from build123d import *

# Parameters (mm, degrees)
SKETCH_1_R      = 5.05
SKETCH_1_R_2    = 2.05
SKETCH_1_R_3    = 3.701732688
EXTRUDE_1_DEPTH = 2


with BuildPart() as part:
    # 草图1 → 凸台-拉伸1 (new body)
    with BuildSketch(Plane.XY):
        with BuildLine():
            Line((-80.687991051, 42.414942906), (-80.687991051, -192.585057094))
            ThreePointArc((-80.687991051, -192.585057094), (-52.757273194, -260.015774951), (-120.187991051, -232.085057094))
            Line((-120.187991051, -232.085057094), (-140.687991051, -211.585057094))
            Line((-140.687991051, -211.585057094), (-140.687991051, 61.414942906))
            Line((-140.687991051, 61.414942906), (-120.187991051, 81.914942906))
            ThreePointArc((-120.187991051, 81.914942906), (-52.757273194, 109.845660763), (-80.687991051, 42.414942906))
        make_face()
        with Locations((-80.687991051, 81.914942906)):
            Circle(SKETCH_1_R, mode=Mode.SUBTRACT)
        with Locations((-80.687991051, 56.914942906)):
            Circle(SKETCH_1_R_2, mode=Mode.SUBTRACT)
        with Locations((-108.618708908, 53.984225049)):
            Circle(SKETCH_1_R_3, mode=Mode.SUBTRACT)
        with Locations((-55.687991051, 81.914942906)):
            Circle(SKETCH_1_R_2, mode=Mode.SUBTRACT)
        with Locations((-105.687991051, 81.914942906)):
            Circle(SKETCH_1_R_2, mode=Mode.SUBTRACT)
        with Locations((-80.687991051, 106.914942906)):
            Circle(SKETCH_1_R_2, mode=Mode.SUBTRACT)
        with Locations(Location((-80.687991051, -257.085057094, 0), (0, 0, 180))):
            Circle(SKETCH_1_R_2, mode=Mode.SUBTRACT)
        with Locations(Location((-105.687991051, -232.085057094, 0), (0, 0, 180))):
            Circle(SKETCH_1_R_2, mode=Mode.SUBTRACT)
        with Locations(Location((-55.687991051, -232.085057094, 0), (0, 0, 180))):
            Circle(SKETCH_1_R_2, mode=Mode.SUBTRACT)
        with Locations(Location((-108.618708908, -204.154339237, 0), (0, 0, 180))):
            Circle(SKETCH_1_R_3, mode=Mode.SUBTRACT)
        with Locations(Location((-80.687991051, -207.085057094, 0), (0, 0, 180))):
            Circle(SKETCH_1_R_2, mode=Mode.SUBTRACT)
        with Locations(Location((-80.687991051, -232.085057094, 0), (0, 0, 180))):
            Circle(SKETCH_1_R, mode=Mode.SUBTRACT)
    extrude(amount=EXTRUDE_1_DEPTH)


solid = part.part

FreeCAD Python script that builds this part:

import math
import FreeCAD as App
import Part
import Sketcher
from FreeCAD import Vector

doc = App.newDocument("Part")
params = doc.addObject("Spreadsheet::Sheet", "Params")
for row, (alias, value) in enumerate([
    ("sketch1_diameter", "4.1 mm"),
    ("sketch1_diameter2", "10.1 mm"),
    ("sketch1_radius", "39.5 mm"),
    ("sketch1_height", "235 mm"),
    ("sketch1_height2", "273 mm"),
    ("pad1_length", "2 mm"),
], start=1):
    params.set(f"A{row}", alias)
    params.set(f"B{row}", "=" + value)
    params.setAlias(f"B{row}", alias)

body = doc.addObject("PartDesign::Body", "Body")

sketch1 = body.newObject("Sketcher::SketchObject", "Sketch")
sketch1.AttachmentSupport = (doc.getObject("XY_Plane"), [""])
sketch1.MapMode = "FlatFace"
sketch1.addGeometry(Part.LineSegment(Vector(-80.7, -192.6, 0), Vector(-80.7, 42.4, 0)), False)
sketch1.addGeometry(Part.ArcOfCircle(Part.Circle(Vector(-80.7, 81.9, 0), Vector(0, 0, 1), 39.5), math.radians(-90), math.radians(180)), False)
sketch1.addGeometry(Part.LineSegment(Vector(-120.2, 81.9, 0), Vector(-140.7, 61.4, 0)), False)
sketch1.addGeometry(Part.LineSegment(Vector(-140.7, 61.4, 0), Vector(-140.7, -211.6, 0)), False)
sketch1.addGeometry(Part.LineSegment(Vector(-140.7, -211.6, 0), Vector(-120.2, -232.1, 0)), False)
sketch1.addGeometry(Part.ArcOfCircle(Part.Circle(Vector(-80.7, -232.1, 0), Vector(0, 0, 1), 39.5), math.radians(180), math.radians(450)), False)
sketch1.addGeometry(Part.Circle(Vector(-55.7, -232.1, 0), Vector(0, 0, 1), 2), False)
sketch1.addGeometry(Part.Circle(Vector(-80.7, -257.1, 0), Vector(0, 0, 1), 2), False)
sketch1.addGeometry(Part.Circle(Vector(-80.7, -232.1, 0), Vector(0, 0, 1), 5), False)
sketch1.addGeometry(Part.Circle(Vector(-80.7, -207.1, 0), Vector(0, 0, 1), 2), False)
sketch1.addGeometry(Part.Circle(Vector(-105.7, -232.1, 0), Vector(0, 0, 1), 2), False)
sketch1.addGeometry(Part.Circle(Vector(-108.6, -204.2, 0), Vector(0, 0, 1), 3.7), False)
sketch1.addGeometry(Part.Circle(Vector(-55.7, 81.9, 0), Vector(0, 0, 1), 2), False)
sketch1.addGeometry(Part.Circle(Vector(-80.7, 56.9, 0), Vector(0, 0, 1), 2), False)
sketch1.addGeometry(Part.Circle(Vector(-80.7, 81.9, 0), Vector(0, 0, 1), 5), False)
sketch1.addGeometry(Part.Circle(Vector(-80.7, 106.9, 0), Vector(0, 0, 1), 2), False)
sketch1.addGeometry(Part.Circle(Vector(-108.6, 54, 0), Vector(0, 0, 1), 3.7), False)
sketch1.addGeometry(Part.Circle(Vector(-105.7, 81.9, 0), Vector(0, 0, 1), 2), False)
sketch1.addConstraint(Sketcher.Constraint("Coincident", 0, 2, 1, 1))
sketch1.addConstraint(Sketcher.Constraint("Coincident", 1, 2, 2, 1))
sketch1.addConstraint(Sketcher.Constraint("Coincident", 2, 2, 3, 1))
sketch1.addConstraint(Sketcher.Constraint("Coincident", 3, 2, 4, 1))
sketch1.addConstraint(Sketcher.Constraint("Coincident", 4, 2, 5, 1))
sketch1.addConstraint(Sketcher.Constraint("Coincident", 5, 2, 0, 1))
sketch1.addConstraint(Sketcher.Constraint("Vertical", 0))
sketch1.addConstraint(Sketcher.Constraint("Vertical", 3))
sketch1.addConstraint(Sketcher.Constraint("Coincident", 8, 3, 5, 3))
sketch1.addConstraint(Sketcher.Constraint("Coincident", 14, 3, 1, 3))
sketch1.addConstraint(Sketcher.Constraint("Equal", 1, 5))
sketch1.addConstraint(Sketcher.Constraint("Equal", 6, 7))
sketch1.addConstraint(Sketcher.Constraint("Equal", 7, 9))
sketch1.addConstraint(Sketcher.Constraint("Equal", 9, 10))
sketch1.addConstraint(Sketcher.Constraint("Equal", 10, 12))
sketch1.addConstraint(Sketcher.Constraint("Equal", 12, 13))
sketch1.addConstraint(Sketcher.Constraint("Equal", 8, 14))
sketch1.addConstraint(Sketcher.Constraint("Equal", 13, 15))
sketch1.addConstraint(Sketcher.Constraint("Equal", 11, 16))
sketch1.addConstraint(Sketcher.Constraint("Equal", 15, 17))
sketch1.addConstraint(Sketcher.Constraint("Perpendicular", 2, 4))
sketch1.addConstraint(Sketcher.Constraint("Horizontal", 5, 3, 6, 3))
sketch1.addConstraint(Sketcher.Constraint("Horizontal", 8, 3, 10, 3))
sketch1.addConstraint(Sketcher.Constraint("Horizontal", 1, 3, 12, 3))
sketch1.addConstraint(Sketcher.Constraint("Horizontal", 14, 3, 17, 3))
sketch1.addConstraint(Sketcher.Constraint("Horizontal", 17, 3, 1, 2))
sketch1.addConstraint(Sketcher.Constraint("Horizontal", 10, 3, 4, 2))
sketch1.addConstraint(Sketcher.Constraint("Vertical", 1, 3, 5, 3))
sketch1.addConstraint(Sketcher.Constraint("Vertical", 5, 3, 7, 3))
sketch1.addConstraint(Sketcher.Constraint("Vertical", 8, 3, 9, 3))
sketch1.addConstraint(Sketcher.Constraint("Vertical", 6, 3, 12, 3))
sketch1.addConstraint(Sketcher.Constraint("Vertical", 9, 3, 13, 3))
sketch1.addConstraint(Sketcher.Constraint("Vertical", 14, 3, 15, 3))
sketch1.addConstraint(Sketcher.Constraint("Vertical", 11, 3, 16, 3))
sketch1.addConstraint(Sketcher.Constraint("Vertical", 10, 3, 17, 3))
sketch1.addConstraint(Sketcher.Constraint("Vertical", 15, 3, 0, 2))
sketch1.addConstraint(Sketcher.Constraint("Equal", 2, 4))
sketch1.addConstraint(Sketcher.Constraint("Diameter", 6, 4.1))
sketch1.addConstraint(Sketcher.Constraint("Diameter", 8, 10.1))
sketch1.addConstraint(Sketcher.Constraint("Radius", 1, 39.5))
sketch1.addConstraint(Sketcher.Constraint("DistanceY", 0, 1, 0, 2, 235.0))
sketch1.addConstraint(Sketcher.Constraint("DistanceY", 3, 2, 3, 1, 273.0))
sketch1.addConstraint(Sketcher.Constraint("DistanceX", 5, 3, 6, 3, 25.0))
sketch1.addConstraint(Sketcher.Constraint("DistanceY", 7, 3, 5, 3, 25.0))
sketch1.addConstraint(Sketcher.Constraint("DistanceY", 5, 3, 9, 3, 25.0))
sketch1.addConstraint(Sketcher.Constraint("DistanceX", 10, 3, 5, 3, 25.0))
sketch1.addConstraint(Sketcher.Constraint("DistanceY", 13, 3, 1, 3, 25.0))
sketch1.addConstraint(Sketcher.Constraint("DistanceY", 1, 3, 15, 3, 25.0))
sketch1.addConstraint(Sketcher.Constraint("Diameter", 11, 7.403465))
sketch1.addConstraint(Sketcher.Constraint("DistanceX", 1, 3, -1, 1, 80.687991))
sketch1.addConstraint(Sketcher.Constraint("DistanceX", 11, 3, -1, 1, 108.618709))
sketch1.addConstraint(Sketcher.Constraint("DistanceY", 11, 3, -1, 1, 204.154339))
sketch1.addConstraint(Sketcher.Constraint("DistanceY", -1, 1, 1, 3, 81.914943))
sketch1.addConstraint(Sketcher.Constraint("DistanceY", -1, 1, 16, 3, 53.984225))
sketch1.setExpression("Constraints[37]", "Params.sketch1_diameter")
sketch1.setExpression("Constraints[38]", "Params.sketch1_diameter2")
sketch1.setExpression("Constraints[39]", "Params.sketch1_radius")
sketch1.setExpression("Constraints[40]", "Params.sketch1_height")
sketch1.setExpression("Constraints[41]", "Params.sketch1_height2")
pad1 = body.newObject("PartDesign::Pad", "Pad")
pad1.Profile = sketch1
pad1.setExpression("Length", "Params.pad1_length")

doc.recompute()
